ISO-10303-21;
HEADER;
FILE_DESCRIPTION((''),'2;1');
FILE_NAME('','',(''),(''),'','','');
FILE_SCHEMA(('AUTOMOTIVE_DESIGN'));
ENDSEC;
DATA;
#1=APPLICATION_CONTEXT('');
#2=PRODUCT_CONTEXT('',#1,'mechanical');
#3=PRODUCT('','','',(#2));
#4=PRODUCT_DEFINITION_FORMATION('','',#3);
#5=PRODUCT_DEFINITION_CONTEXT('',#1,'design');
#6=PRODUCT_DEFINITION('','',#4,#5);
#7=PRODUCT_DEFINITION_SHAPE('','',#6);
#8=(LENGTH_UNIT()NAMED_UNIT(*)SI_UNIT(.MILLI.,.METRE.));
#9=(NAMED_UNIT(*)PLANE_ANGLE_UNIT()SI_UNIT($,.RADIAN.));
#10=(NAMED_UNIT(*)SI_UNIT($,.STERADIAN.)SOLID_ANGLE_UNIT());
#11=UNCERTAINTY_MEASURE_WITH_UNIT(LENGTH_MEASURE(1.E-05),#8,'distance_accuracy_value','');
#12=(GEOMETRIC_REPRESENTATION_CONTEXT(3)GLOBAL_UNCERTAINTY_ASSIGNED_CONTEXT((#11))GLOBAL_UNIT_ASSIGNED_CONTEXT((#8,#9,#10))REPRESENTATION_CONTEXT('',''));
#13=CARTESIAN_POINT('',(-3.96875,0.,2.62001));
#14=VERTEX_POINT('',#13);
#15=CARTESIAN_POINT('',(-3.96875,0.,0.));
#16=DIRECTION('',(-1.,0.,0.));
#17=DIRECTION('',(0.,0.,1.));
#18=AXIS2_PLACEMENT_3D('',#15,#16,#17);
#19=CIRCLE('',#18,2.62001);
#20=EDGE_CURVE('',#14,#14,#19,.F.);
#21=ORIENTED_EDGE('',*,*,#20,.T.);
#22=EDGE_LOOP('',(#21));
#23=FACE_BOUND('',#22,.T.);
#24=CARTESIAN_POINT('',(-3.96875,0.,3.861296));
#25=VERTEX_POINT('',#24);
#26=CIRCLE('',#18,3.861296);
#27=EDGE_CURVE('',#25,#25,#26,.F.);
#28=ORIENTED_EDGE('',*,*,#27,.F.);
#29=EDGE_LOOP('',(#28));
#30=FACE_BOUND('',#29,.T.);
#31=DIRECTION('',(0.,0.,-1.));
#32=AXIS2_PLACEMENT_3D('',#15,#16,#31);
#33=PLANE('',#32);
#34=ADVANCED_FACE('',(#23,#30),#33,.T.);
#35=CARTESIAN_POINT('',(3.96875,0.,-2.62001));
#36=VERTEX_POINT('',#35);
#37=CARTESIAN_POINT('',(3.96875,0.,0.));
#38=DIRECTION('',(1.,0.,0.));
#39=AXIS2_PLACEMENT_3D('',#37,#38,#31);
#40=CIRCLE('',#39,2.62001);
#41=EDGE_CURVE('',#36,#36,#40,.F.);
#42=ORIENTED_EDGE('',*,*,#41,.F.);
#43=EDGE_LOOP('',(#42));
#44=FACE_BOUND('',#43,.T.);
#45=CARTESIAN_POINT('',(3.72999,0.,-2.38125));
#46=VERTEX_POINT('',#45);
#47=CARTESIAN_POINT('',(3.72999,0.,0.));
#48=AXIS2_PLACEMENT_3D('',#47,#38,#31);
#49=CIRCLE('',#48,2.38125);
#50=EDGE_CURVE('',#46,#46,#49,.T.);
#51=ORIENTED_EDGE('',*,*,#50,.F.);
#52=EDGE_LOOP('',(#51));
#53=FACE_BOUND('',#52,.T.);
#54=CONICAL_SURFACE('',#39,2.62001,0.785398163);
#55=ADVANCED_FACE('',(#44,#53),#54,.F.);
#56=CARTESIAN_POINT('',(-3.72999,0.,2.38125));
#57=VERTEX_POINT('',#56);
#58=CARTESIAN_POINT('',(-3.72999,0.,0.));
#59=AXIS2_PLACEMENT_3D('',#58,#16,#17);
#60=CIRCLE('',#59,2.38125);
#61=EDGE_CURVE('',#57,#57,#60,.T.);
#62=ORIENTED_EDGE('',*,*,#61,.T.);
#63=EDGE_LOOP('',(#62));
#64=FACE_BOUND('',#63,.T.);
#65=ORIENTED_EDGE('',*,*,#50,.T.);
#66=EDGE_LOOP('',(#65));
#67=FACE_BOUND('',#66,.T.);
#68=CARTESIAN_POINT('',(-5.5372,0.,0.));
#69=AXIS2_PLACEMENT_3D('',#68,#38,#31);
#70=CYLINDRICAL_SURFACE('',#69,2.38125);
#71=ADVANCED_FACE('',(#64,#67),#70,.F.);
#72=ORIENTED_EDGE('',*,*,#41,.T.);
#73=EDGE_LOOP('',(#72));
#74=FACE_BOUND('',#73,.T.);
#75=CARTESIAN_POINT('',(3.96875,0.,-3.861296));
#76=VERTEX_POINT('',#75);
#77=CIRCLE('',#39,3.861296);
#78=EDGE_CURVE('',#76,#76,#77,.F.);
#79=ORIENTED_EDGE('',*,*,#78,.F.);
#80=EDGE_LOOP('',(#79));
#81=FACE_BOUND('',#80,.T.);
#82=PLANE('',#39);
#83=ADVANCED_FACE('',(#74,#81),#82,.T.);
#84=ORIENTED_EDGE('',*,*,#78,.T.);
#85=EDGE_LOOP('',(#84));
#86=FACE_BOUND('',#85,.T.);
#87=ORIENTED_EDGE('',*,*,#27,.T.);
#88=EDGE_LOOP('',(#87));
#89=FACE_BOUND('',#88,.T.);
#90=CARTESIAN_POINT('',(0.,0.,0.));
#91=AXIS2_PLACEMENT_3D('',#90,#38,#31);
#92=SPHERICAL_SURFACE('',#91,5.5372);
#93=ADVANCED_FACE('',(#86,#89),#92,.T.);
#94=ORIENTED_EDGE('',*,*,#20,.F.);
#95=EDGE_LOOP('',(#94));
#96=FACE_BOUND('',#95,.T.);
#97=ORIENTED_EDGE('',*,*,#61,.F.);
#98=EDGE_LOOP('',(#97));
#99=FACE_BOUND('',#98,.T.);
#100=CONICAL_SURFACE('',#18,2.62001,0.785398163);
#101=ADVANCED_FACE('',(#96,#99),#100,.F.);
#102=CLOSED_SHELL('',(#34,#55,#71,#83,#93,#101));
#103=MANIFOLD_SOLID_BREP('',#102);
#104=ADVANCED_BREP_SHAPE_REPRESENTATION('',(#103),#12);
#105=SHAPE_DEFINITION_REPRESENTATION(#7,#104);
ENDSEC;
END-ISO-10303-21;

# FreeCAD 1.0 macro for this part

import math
import FreeCAD as App
import Part
import Sketcher

V = App.Vector
Q = App.Units.Quantity


def edges_at(feature, points):
    """Names of the edges that pass closest to the given points."""
    edges = feature.Shape.Edges
    near = lambda p: min(range(len(edges)), key=lambda i: edges[i].distToShape(Part.Vertex(*p))[0])
    return sorted({f"Edge{near(p) + 1}" for p in points})

doc = App.newDocument("Part")
params = doc.addObject("Spreadsheet::Sheet", "Params")
for row, (alias, value) in enumerate([
    ("sketch1_radius", "0.218 in"),
    ("revolution_angle", "360 deg"),
    ("sketch2_diameter", "0.1875 in"),
    ("chamfer_size", "0.0094 in"),
], start=1):
    params.set(f"A{row}", alias)
    params.set(f"B{row}", "=" + value)
    params.setAlias(f"B{row}", alias)

body = doc.addObject("PartDesign::Body", "Body")

sketch1 = body.newObject("Sketcher::SketchObject", "Sketch")
sketch1.AttachmentSupport = (doc.getObject("XY_Plane"), [""])
sketch1.MapMode = "FlatFace"
sketch1.addGeometry([
    Part.LineSegment(V(0, -6, 0), V(0, 6, 0)),
    Part.ArcOfCircle(Part.Circle(V(0, 0, 0), V(0, 0, 1), 6), math.radians(90), math.radians(270)),
], False)
sketch1.addConstraint([
    Sketcher.Constraint("Coincident", 0, 1, 1, 2),
    Sketcher.Constraint("Coincident", 1, 1, 0, 2),
    Sketcher.Constraint("Vertical", 0),
    Sketcher.Constraint("Coincident", 1, 3, -1, 1),
    Sketcher.Constraint("PointOnObject", 0, 1, -2),
    Sketcher.Constraint("Radius", 1, Q("0.218 in")),
])
sketch1.setExpression("Constraints[5]", "Params.sketch1_radius")
revolution = body.newObject("PartDesign::Revolution", "Revolution")
revolution.Profile = sketch1
revolution.ReferenceAxis = (sketch1, ["V_Axis"])
revolution.setExpression("Angle", "Params.revolution_angle")

sketch2 = body.newObject("Sketcher::SketchObject", "Sketch001")
sketch2.AttachmentSupport = (doc.getObject("YZ_Plane"), [""])
sketch2.MapMode = "FlatFace"
sketch2.addGeometry(Part.Circle(V(0, 0, 0), V(0, 0, 1), 2.4), False)
sketch2.addConstraint([
    Sketcher.Constraint("Coincident", 0, 3, -1, 1),
    Sketcher.Constraint("Diameter", 0, Q("0.1875 in")),
])
sketch2.setExpression("Constraints[1]", "Params.sketch2_diameter")
pocket1 = body.newObject("PartDesign::Pocket", "Pocket")
pocket1.Profile = sketch2
pocket1.Type = "ThroughAll"
pocket1.Midplane = True

sketch3 = body.newObject("Sketcher::SketchObject", "Sketch002")
sketch3.AttachmentSupport = (doc.getObject("YZ_Plane"), [""])
sketch3.MapMode = "FlatFace"
sketch3.AttachmentOffset = App.Placement(V(0, 0, 0.15625 * 25.4), App.Rotation())
sketch3.addGeometry(Part.Circle(V(0, 0, 0), V(0, 0, 1), 5), False)
sketch3.addConstraint([
    Sketcher.Constraint("Coincident", 0, 3, -1, 1),
    Sketcher.Constraint("Diameter", 0, 10.0),
])
pocket2 = body.newObject("PartDesign::Pocket", "Pocket001")
pocket2.Profile = sketch3
pocket2.Type = "ThroughAll"
pocket2.Reversed = True
doc.recompute()

mirrored = body.newObject("PartDesign::Mirrored", "Mirrored")
mirrored.Originals = [pocket2]
mirrored.MirrorPlane = (doc.getObject("YZ_Plane"), [""])
body.Tip = mirrored
doc.recompute()

chamfer = body.newObject("PartDesign::Chamfer", "Chamfer")
chamfer.Base = (mirrored, edges_at(mirrored, [(3.969, 0, 2.381), (-3.969, 0, 2.381)]))
chamfer.setExpression("Size", "Params.chamfer_size")

doc.recompute()
